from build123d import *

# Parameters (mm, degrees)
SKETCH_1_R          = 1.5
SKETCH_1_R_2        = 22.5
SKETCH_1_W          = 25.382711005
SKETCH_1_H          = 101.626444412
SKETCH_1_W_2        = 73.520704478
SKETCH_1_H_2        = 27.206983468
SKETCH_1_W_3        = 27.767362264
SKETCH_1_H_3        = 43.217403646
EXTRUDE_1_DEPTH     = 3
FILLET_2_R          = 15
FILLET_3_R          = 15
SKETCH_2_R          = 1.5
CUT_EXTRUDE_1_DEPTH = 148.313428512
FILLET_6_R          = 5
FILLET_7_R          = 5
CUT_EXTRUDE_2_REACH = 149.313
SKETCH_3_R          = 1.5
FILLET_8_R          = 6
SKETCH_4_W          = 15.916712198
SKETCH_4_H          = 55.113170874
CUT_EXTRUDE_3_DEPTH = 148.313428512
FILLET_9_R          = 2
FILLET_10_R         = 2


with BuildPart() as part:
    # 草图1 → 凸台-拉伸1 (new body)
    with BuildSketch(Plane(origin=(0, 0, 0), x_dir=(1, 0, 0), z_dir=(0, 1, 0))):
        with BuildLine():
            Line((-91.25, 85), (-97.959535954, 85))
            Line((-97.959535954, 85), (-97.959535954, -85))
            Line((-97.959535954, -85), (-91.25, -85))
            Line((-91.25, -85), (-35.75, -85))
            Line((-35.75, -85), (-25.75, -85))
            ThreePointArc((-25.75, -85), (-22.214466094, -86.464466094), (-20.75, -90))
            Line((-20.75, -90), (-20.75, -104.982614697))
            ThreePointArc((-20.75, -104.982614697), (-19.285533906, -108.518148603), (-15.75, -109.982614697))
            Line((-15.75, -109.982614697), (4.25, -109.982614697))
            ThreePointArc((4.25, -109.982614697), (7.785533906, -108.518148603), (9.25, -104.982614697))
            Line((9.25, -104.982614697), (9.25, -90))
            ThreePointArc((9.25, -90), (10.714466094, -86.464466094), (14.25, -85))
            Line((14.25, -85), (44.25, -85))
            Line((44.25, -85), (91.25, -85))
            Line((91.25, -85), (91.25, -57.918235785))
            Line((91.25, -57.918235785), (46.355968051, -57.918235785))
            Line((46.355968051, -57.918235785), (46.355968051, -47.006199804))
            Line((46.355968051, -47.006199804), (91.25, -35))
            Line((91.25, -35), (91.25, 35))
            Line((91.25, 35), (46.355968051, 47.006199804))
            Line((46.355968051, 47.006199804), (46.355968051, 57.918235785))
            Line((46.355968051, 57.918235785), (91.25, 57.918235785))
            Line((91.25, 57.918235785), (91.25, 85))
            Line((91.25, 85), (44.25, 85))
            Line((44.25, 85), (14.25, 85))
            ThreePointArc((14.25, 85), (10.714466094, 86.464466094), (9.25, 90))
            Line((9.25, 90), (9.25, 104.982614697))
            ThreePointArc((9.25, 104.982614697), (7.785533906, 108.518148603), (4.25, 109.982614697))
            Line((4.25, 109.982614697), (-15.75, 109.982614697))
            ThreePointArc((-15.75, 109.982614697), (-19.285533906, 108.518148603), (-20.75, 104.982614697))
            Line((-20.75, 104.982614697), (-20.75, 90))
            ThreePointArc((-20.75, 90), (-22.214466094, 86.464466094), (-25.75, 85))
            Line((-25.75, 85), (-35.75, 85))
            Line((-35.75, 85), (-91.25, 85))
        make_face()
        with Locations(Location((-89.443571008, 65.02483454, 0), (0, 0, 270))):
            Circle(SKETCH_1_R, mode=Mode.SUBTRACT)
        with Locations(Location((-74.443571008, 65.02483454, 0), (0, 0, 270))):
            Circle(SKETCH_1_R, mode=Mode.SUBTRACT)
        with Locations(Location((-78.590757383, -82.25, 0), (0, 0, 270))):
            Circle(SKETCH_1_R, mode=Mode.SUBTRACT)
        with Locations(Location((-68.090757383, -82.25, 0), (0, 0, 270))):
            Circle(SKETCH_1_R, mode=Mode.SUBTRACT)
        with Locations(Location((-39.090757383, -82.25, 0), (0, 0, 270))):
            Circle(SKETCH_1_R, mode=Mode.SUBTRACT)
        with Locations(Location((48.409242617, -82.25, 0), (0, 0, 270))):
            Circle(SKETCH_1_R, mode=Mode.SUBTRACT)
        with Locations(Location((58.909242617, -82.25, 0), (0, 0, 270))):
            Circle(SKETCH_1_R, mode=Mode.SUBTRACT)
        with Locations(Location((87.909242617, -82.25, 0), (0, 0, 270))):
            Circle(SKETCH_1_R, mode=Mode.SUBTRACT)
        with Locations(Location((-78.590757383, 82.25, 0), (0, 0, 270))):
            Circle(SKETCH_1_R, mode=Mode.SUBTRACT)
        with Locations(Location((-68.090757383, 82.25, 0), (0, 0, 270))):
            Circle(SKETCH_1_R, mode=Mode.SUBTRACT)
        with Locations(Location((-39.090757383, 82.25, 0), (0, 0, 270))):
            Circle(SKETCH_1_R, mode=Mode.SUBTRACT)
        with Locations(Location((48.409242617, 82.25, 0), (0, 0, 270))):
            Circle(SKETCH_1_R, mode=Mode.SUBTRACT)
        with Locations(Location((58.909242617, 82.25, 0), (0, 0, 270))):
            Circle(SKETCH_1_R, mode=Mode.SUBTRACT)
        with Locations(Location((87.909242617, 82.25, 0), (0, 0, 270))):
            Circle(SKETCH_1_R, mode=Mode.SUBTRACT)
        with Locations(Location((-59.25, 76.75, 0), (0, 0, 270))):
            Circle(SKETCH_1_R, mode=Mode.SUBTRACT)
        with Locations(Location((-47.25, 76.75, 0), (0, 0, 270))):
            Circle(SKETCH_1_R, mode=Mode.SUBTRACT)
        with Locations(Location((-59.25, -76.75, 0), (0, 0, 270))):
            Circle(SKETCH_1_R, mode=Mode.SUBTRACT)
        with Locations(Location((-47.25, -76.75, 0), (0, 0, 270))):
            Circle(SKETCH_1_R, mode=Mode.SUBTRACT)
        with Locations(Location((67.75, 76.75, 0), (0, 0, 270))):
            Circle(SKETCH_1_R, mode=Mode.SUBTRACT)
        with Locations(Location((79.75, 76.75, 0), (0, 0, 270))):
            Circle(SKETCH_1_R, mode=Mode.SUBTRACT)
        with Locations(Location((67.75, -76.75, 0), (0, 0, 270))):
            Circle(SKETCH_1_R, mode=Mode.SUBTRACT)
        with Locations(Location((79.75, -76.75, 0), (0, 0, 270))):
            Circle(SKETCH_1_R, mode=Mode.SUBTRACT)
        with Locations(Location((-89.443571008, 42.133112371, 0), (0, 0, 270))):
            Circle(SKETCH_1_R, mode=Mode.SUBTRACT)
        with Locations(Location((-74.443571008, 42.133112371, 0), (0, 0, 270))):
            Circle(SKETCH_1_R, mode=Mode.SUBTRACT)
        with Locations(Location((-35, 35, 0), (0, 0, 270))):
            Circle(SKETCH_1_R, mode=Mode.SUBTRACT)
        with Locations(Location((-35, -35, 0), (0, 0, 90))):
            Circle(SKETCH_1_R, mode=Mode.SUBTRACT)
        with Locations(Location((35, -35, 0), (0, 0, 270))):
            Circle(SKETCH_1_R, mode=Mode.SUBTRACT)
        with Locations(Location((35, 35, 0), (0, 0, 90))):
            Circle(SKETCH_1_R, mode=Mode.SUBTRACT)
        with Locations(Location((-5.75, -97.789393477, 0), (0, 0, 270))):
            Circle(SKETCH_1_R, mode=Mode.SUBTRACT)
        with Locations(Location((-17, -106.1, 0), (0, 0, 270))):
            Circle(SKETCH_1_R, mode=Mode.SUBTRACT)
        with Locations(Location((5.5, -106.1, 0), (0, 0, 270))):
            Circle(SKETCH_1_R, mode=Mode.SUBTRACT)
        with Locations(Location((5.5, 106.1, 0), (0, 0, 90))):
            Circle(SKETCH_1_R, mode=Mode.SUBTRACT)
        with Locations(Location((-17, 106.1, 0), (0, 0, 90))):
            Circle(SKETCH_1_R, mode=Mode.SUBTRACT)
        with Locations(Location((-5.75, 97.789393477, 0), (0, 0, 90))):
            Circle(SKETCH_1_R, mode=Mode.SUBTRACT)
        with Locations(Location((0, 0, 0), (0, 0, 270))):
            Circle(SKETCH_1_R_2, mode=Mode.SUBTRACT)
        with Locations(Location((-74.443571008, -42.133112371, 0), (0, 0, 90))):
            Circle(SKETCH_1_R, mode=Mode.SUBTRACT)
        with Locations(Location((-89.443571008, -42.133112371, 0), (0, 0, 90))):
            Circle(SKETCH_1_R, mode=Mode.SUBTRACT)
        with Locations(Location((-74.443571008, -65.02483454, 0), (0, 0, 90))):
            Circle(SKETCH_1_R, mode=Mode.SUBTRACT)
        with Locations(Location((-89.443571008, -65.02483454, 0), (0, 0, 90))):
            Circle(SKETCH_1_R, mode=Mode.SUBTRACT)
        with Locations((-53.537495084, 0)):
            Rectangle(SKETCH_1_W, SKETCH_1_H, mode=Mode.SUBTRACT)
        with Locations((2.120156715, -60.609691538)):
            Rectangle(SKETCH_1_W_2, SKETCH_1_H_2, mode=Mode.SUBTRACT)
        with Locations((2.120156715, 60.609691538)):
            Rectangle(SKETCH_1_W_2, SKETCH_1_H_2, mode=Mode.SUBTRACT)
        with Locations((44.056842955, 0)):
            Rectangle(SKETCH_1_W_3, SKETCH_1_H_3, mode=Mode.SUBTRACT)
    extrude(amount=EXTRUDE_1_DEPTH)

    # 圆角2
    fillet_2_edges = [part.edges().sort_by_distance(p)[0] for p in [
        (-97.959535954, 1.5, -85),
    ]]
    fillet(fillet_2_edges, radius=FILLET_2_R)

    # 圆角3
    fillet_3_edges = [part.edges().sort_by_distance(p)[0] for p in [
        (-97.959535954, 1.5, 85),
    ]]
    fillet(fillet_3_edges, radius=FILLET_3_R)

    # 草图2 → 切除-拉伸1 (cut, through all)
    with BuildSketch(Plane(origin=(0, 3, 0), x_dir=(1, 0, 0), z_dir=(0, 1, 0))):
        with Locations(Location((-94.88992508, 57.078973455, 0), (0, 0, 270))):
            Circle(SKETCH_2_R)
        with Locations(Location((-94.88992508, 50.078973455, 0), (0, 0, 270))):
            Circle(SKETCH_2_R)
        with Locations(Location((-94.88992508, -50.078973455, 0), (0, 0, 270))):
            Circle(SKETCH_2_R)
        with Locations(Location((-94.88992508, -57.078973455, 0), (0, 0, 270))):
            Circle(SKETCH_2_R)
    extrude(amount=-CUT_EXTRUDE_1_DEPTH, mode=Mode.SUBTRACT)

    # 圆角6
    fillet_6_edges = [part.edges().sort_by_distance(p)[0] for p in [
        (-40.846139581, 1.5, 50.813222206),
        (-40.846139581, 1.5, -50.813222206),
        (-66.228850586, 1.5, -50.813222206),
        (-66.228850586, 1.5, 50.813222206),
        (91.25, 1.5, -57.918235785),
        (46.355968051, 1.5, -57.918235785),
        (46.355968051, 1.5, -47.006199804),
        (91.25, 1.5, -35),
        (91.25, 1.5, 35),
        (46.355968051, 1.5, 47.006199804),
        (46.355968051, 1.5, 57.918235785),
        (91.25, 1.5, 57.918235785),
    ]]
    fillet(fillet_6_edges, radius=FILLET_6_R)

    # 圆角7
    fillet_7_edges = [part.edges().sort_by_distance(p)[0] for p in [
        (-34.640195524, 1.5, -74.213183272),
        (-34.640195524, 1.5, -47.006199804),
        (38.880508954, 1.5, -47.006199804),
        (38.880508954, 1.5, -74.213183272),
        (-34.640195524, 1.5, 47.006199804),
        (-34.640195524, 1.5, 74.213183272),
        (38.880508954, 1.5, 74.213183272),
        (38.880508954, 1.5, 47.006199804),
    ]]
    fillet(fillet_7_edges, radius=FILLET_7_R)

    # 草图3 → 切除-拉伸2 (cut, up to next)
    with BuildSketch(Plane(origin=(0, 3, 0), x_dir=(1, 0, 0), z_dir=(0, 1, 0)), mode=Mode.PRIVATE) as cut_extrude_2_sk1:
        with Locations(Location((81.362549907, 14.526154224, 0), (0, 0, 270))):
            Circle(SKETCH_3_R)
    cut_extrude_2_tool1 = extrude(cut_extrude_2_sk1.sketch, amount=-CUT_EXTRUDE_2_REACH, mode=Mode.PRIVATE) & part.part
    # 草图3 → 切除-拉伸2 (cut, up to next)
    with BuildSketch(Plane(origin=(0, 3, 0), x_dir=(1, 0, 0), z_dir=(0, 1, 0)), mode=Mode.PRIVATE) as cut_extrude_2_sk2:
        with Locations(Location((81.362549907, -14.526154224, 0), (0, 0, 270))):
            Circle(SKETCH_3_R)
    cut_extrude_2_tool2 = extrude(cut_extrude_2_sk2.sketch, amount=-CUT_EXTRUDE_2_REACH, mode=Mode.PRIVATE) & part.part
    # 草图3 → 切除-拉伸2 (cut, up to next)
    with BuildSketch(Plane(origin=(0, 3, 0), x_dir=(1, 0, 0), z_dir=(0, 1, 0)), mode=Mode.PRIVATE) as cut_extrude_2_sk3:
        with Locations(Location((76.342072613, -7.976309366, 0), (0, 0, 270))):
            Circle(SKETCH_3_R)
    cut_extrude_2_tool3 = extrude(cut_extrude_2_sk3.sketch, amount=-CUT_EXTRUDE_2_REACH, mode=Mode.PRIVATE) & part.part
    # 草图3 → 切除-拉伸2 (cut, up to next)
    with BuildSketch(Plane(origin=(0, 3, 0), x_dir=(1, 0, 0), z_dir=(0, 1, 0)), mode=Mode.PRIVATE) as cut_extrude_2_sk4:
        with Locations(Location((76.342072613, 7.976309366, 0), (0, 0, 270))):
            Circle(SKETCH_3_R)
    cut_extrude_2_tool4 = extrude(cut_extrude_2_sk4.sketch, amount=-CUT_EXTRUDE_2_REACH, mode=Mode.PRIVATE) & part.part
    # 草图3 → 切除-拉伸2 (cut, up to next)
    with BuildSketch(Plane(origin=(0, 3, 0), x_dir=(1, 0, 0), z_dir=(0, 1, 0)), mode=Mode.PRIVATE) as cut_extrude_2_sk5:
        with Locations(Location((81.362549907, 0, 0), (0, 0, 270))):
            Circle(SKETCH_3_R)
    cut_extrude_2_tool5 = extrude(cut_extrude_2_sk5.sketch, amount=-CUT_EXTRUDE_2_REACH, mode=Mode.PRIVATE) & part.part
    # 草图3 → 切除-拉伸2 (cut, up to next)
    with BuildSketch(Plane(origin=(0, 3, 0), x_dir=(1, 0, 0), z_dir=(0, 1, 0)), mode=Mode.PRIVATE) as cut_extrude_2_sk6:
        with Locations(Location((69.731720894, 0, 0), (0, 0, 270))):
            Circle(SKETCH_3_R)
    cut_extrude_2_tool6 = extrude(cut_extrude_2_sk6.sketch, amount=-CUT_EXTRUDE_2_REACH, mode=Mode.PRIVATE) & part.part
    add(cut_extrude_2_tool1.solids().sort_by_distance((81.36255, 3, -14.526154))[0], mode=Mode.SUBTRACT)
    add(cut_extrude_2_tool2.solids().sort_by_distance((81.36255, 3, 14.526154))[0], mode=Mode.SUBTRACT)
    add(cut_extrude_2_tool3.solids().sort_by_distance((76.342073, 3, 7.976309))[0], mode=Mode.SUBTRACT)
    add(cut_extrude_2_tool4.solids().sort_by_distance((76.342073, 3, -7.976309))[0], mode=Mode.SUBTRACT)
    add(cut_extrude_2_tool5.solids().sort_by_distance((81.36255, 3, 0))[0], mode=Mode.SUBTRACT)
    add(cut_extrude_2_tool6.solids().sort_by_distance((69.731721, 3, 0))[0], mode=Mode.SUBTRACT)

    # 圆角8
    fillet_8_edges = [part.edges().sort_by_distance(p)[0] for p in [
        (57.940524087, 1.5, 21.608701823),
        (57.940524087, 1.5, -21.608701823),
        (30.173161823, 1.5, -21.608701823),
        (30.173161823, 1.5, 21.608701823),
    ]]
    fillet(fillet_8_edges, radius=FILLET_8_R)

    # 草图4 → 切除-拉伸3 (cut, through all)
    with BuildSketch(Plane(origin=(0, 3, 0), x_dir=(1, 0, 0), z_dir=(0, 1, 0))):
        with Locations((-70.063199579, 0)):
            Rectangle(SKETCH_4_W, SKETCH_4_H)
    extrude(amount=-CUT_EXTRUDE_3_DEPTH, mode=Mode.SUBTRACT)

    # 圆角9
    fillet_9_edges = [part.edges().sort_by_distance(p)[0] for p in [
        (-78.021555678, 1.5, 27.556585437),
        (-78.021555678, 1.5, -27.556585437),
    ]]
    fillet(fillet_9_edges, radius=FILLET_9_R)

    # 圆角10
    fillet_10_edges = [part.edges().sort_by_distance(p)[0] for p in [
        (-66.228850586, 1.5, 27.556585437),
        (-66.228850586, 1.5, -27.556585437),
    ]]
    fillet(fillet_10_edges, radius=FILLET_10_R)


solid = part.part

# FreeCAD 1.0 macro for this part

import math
import FreeCAD as App
import Part
import Sketcher

V = App.Vector


def edges_at(feature, points):
    """Names of the edges that pass closest to the given points."""
    edges = feature.Shape.Edges
    near = lambda p: min(range(len(edges)), key=lambda i: edges[i].distToShape(Part.Vertex(*p))[0])
    return sorted({f"Edge{near(p) + 1}" for p in points})

doc = App.newDocument("Part")
body = doc.addObject("PartDesign::Body", "Body")

# Sketch on XZ plane
sketch1 = body.newObject("Sketcher::SketchObject", "Sketch")
sketch1.AttachmentSupport = (doc.getObject("XZ_Plane"), [""])
sketch1.MapMode = "FlatFace"
sketch1.addGeometry(Part.LineSegment(V(-98, -85, 0), V(-98, 85, 0)), False)
sketch1.addGeometry(Part.LineSegment(V(-98, 85, 0), V(-25.8, 85, 0)), False)
sketch1.addGeometry(Part.ArcOfCircle(Part.Circle(V(-25.8, 90, 0), V(0, 0, 1), 5), math.radians(-90), math.radians(0)), False)
sketch1.addGeometry(Part.LineSegment(V(-20.8, 90, 0), V(-20.8, 105, 0)), False)
sketch1.addGeometry(Part.ArcOfCircle(Part.Circle(V(-15.8, 105, 0), V(0, 0, 1), 5), math.radians(90), math.radians(180)), False)
sketch1.addGeometry(Part.LineSegment(V(-15.8, 110, 0), V(4.2, 110, 0)), False)
sketch1.addGeometry(Part.ArcOfCircle(Part.Circle(V(4.2, 105, 0), V(0, 0, 1), 5), math.radians(0), math.radians(90)), False)
sketch1.addGeometry(Part.LineSegment(V(9.2, 105, 0), V(9.2, 90, 0)), False)
sketch1.addGeometry(Part.ArcOfCircle(Part.Circle(V(14.2, 90, 0), V(0, 0, 1), 5), math.radians(180), math.radians(270)), False)
sketch1.addGeometry(Part.LineSegment(V(14.2, 85, 0), V(91.2, 85, 0)), False)
sketch1.addGeometry(Part.LineSegment(V(91.2, 85, 0), V(91.2, 57.9, 0)), False)
sketch1.addGeometry(Part.LineSegment(V(91.2, 57.9, 0), V(46.4, 57.9, 0)), False)
sketch1.addGeometry(Part.LineSegment(V(46.4, 57.9, 0), V(46.4, 47, 0)), False)
sketch1.addGeometry(Part.LineSegment(V(46.4, 47, 0), V(91.2, 35, 0)), False)
sketch1.addGeometry(Part.LineSegment(V(91.2, 35, 0), V(91.2, -35, 0)), False)
sketch1.addGeometry(Part.LineSegment(V(91.2, -35, 0), V(46.4, -47, 0)), False)
sketch1.addGeometry(Part.LineSegment(V(46.4, -47, 0), V(46.4, -57.9, 0)), False)
sketch1.addGeometry(Part.LineSegment(V(46.4, -57.9, 0), V(91.2, -57.9, 0)), False)
sketch1.addGeometry(Part.LineSegment(V(91.2, -57.9, 0), V(91.2, -85, 0)), False)
sketch1.addGeometry(Part.LineSegment(V(91.2, -85, 0), V(14.2, -85, 0)), False)
sketch1.addGeometry(Part.ArcOfCircle(Part.Circle(V(14.2, -90, 0), V(0, 0, 1), 5), math.radians(90), math.radians(180)), False)
sketch1.addGeometry(Part.LineSegment(V(9.2, -90, 0), V(9.2, -105, 0)), False)
sketch1.addGeometry(Part.ArcOfCircle(Part.Circle(V(4.2, -105, 0), V(0, 0, 1), 5), math.radians(-90), math.radians(0)), False)
sketch1.addGeometry(Part.LineSegment(V(4.2, -110, 0), V(-15.8, -110, 0)), False)
sketch1.addGeometry(Part.ArcOfCircle(Part.Circle(V(-15.8, -105, 0), V(0, 0, 1), 5), math.radians(180), math.radians(270)), False)
sketch1.addGeometry(Part.LineSegment(V(-20.8, -105, 0), V(-20.8, -90, 0)), False)
sketch1.addGeometry(Part.ArcOfCircle(Part.Circle(V(-25.8, -90, 0), V(0, 0, 1), 5), math.radians(0), math.radians(90)), False)
sketch1.addGeometry(Part.LineSegment(V(-25.8, -85, 0), V(-98, -85, 0)), False)
sketch1.addGeometry(Part.Circle(V(-78.6, 82.2, 0), V(0, 0, 1), 1.5), False)
sketch1.addGeometry(Part.Circle(V(-68.1, 82.2, 0), V(0, 0, 1), 1.5), False)
sketch1.addGeometry(Part.Circle(V(-89.4, 65, 0), V(0, 0, 1), 1.5), False)
sketch1.addGeometry(Part.Circle(V(-74.4, 65, 0), V(0, 0, 1), 1.5), False)
sketch1.addGeometry(Part.Circle(V(-59.2, 76.8, 0), V(0, 0, 1), 1.5), False)
sketch1.addGeometry(Part.Circle(V(-47.2, 76.8, 0), V(0, 0, 1), 1.5), False)
sketch1.addGeometry(Part.Circle(V(-39.1, 82.2, 0), V(0, 0, 1), 1.5), False)
sketch1.addGeometry(Part.Circle(V(-17, 106.1, 0), V(0, 0, 1), 1.5), False)
sketch1.addGeometry(Part.Circle(V(-5.8, 97.8, 0), V(0, 0, 1), 1.5), False)
sketch1.addGeometry(Part.Circle(V(-89.4, 42.1, 0), V(0, 0, 1), 1.5), False)
sketch1.addGeometry(Part.Circle(V(-74.4, 42.1, 0), V(0, 0, 1), 1.5), False)
sketch1.addGeometry(Part.Circle(V(-35, 35, 0), V(0, 0, 1), 1.5), False)
sketch1.addGeometry(Part.Circle(V(5.5, 106.1, 0), V(0, 0, 1), 1.5), False)
sketch1.addGeometry(Part.LineSegment(V(38.9, 74.2, 0), V(-34.6, 74.2, 0)), False)
sketch1.addGeometry(Part.LineSegment(V(-34.6, 74.2, 0), V(-34.6, 47, 0)), False)
sketch1.addGeometry(Part.LineSegment(V(-34.6, 47, 0), V(38.9, 47, 0)), False)
sketch1.addGeometry(Part.LineSegment(V(38.9, 47, 0), V(38.9, 74.2, 0)), False)
sketch1.addGeometry(Part.Circle(V(48.4, 82.2, 0), V(0, 0, 1), 1.5), False)
sketch1.addGeometry(Part.Circle(V(58.9, 82.2, 0), V(0, 0, 1), 1.5), False)
sketch1.addGeometry(Part.Circle(V(87.9, 82.2, 0), V(0, 0, 1), 1.5), False)
sketch1.addGeometry(Part.Circle(V(67.8, 76.8, 0), V(0, 0, 1), 1.5), False)
sketch1.addGeometry(Part.Circle(V(79.8, 76.8, 0), V(0, 0, 1), 1.5), False)
sketch1.addGeometry(Part.Circle(V(35, 35, 0), V(0, 0, 1), 1.5), False)
sketch1.addGeometry(Part.LineSegment(V(-40.8, 50.8, 0), V(-66.2, 50.8, 0)), False)
sketch1.addGeometry(Part.LineSegment(V(-66.2, 50.8, 0), V(-66.2, -50.8, 0)), False)
sketch1.addGeometry(Part.LineSegment(V(-66.2, -50.8, 0), V(-40.8, -50.8, 0)), False)
sketch1.addGeometry(Part.LineSegment(V(-40.8, -50.8, 0), V(-40.8, 50.8, 0)), False)
sketch1.addGeometry(Part.Circle(V(-89.4, -42.1, 0), V(0, 0, 1), 1.5), False)
sketch1.addGeometry(Part.Circle(V(-74.4, -42.1, 0), V(0, 0, 1), 1.5), False)
sketch1.addGeometry(Part.Circle(V(-35, -35, 0), V(0, 0, 1), 1.5), False)
sketch1.addGeometry(Part.Circle(V(-89.4, -65, 0), V(0, 0, 1), 1.5), False)
sketch1.addGeometry(Part.Circle(V(-74.4, -65, 0), V(0, 0, 1), 1.5), False)
sketch1.addGeometry(Part.Circle(V(-59.2, -76.8, 0), V(0, 0, 1), 1.5), False)
sketch1.addGeometry(Part.Circle(V(-47.2, -76.8, 0), V(0, 0, 1), 1.5), False)
sketch1.addGeometry(Part.Circle(V(-78.6, -82.2, 0), V(0, 0, 1), 1.5), False)
sketch1.addGeometry(Part.Circle(V(-68.1, -82.2, 0), V(0, 0, 1), 1.5), False)
sketch1.addGeometry(Part.Circle(V(-39.1, -82.2, 0), V(0, 0, 1), 1.5), False)
sketch1.addGeometry(Part.Circle(V(-17, -106.1, 0), V(0, 0, 1), 1.5), False)
sketch1.addGeometry(Part.Circle(V(-5.8, -97.8, 0), V(0, 0, 1), 1.5), False)
sketch1.addGeometry(Part.Circle(V(0, 0, 0), V(0, 0, 1), 22.5), False)
sketch1.addGeometry(Part.LineSegment(V(57.9, 21.6, 0), V(30.2, 21.6, 0)), False)
sketch1.addGeometry(Part.LineSegment(V(30.2, 21.6, 0), V(30.2, -21.6, 0)), False)
sketch1.addGeometry(Part.LineSegment(V(30.2, -21.6, 0), V(57.9, -21.6, 0)), False)
sketch1.addGeometry(Part.LineSegment(V(57.9, -21.6, 0), V(57.9, 21.6, 0)), False)
sketch1.addGeometry(Part.Circle(V(35, -35, 0), V(0, 0, 1), 1.5), False)
sketch1.addGeometry(Part.LineSegment(V(38.9, -47, 0), V(-34.6, -47, 0)), False)
sketch1.addGeometry(Part.LineSegment(V(-34.6, -47, 0), V(-34.6, -74.2, 0)), False)
sketch1.addGeometry(Part.LineSegment(V(-34.6, -74.2, 0), V(38.9, -74.2, 0)), False)
sketch1.addGeometry(Part.LineSegment(V(38.9, -74.2, 0), V(38.9, -47, 0)), False)
sketch1.addGeometry(Part.Circle(V(5.5, -106.1, 0), V(0, 0, 1), 1.5), False)
sketch1.addGeometry(Part.Circle(V(67.8, -76.8, 0), V(0, 0, 1), 1.5), False)
sketch1.addGeometry(Part.Circle(V(79.8, -76.8, 0), V(0, 0, 1), 1.5), False)
sketch1.addGeometry(Part.Circle(V(48.4, -82.2, 0), V(0, 0, 1), 1.5), False)
sketch1.addGeometry(Part.Circle(V(58.9, -82.2, 0), V(0, 0, 1), 1.5), False)
sketch1.addGeometry(Part.Circle(V(87.9, -82.2, 0), V(0, 0, 1), 1.5), False)
sketch1.addConstraint(Sketcher.Constraint("Coincident", 0, 2, 1, 1))
sketch1.addConstraint(Sketcher.Constraint("Tangent", 1, 2, 2, 1))
sketch1.addConstraint(Sketcher.Constraint("Tangent", 2, 2, 3, 1))
sketch1.addConstraint(Sketcher.Constraint("Tangent", 3, 2, 4, 2))
sketch1.addConstraint(Sketcher.Constraint("Tangent", 4, 1, 5, 1))
sketch1.addConstraint(Sketcher.Constraint("Tangent", 5, 2, 6, 2))
sketch1.addConstraint(Sketcher.Constraint("Tangent", 6, 1, 7, 1))
sketch1.addConstraint(Sketcher.Constraint("Tangent", 7, 2, 8, 1))
sketch1.addConstraint(Sketcher.Constraint("Tangent", 8, 2, 9, 1))
sketch1.addConstraint(Sketcher.Constraint("Coincident", 9, 2, 10, 1))
sketch1.addConstraint(Sketcher.Constraint("Coincident", 10, 2, 11, 1))
sketch1.addConstraint(Sketcher.Constraint("Coincident", 11, 2, 12, 1))
sketch1.addConstraint(Sketcher.Constraint("Coincident", 12, 2, 13, 1))
sketch1.addConstraint(Sketcher.Constraint("Coincident", 13, 2, 14, 1))
sketch1.addConstraint(Sketcher.Constraint("Coincident", 14, 2, 15, 1))
sketch1.addConstraint(Sketcher.Constraint("Coincident", 15, 2, 16, 1))
sketch1.addConstraint(Sketcher.Constraint("Coincident", 16, 2, 17, 1))
sketch1.addConstraint(Sketcher.Constraint("Coincident", 17, 2, 18, 1))
sketch1.addConstraint(Sketcher.Constraint("Coincident", 18, 2, 19, 1))
sketch1.addConstraint(Sketcher.Constraint("Tangent", 19, 2, 20, 1))
sketch1.addConstraint(Sketcher.Constraint("Tangent", 20, 2, 21, 1))
sketch1.addConstraint(Sketcher.Constraint("Tangent", 21, 2, 22, 2))
sketch1.addConstraint(Sketcher.Constraint("Tangent", 22, 1, 23, 1))
sketch1.addConstraint(Sketcher.Constraint("Tangent", 23, 2, 24, 2))
sketch1.addConstraint(Sketcher.Constraint("Tangent", 24, 1, 25, 1))
sketch1.addConstraint(Sketcher.Constraint("Tangent", 25, 2, 26, 1))
sketch1.addConstraint(Sketcher.Constraint("Tangent", 26, 2, 27, 1))
sketch1.addConstraint(Sketcher.Constraint("Coincident", 27, 2, 0, 1))
sketch1.addConstraint(Sketcher.Constraint("Coincident", 41, 2, 42, 1))
sketch1.addConstraint(Sketcher.Constraint("Coincident", 42, 2, 43, 1))
sketch1.addConstraint(Sketcher.Constraint("Coincident", 43, 2, 44, 1))
sketch1.addConstraint(Sketcher.Constraint("Coincident", 44, 2, 41, 1))
sketch1.addConstraint(Sketcher.Constraint("Coincident", 51, 2, 52, 1))
sketch1.addConstraint(Sketcher.Constraint("Coincident", 52, 2, 53, 1))
sketch1.addConstraint(Sketcher.Constraint("Coincident", 53, 2, 54, 1))
sketch1.addConstraint(Sketcher.Constraint("Coincident", 54, 2, 51, 1))
sketch1.addConstraint(Sketcher.Constraint("Coincident", 68, 2, 69, 1))
sketch1.addConstraint(Sketcher.Constraint("Coincident", 69, 2, 70, 1))
sketch1.addConstraint(Sketcher.Constraint("Coincident", 70, 2, 71, 1))
sketch1.addConstraint(Sketcher.Constraint("Coincident", 71, 2, 68, 1))
sketch1.addConstraint(Sketcher.Constraint("Coincident", 73, 2, 74, 1))
sketch1.addConstraint(Sketcher.Constraint("Coincident", 74, 2, 75, 1))
sketch1.addConstraint(Sketcher.Constraint("Coincident", 75, 2, 76, 1))
sketch1.addConstraint(Sketcher.Constraint("Coincident", 76, 2, 73, 1))
sketch1.addConstraint(Sketcher.Constraint("Vertical", 0))
sketch1.addConstraint(Sketcher.Constraint("Horizontal", 1))
sketch1.addConstraint(Sketcher.Constraint("Vertical", 3))
sketch1.addConstraint(Sketcher.Constraint("Horizontal", 5))
sketch1.addConstraint(Sketcher.Constraint("Vertical", 7))
sketch1.addConstraint(Sketcher.Constraint("Horizontal", 9))
sketch1.addConstraint(Sketcher.Constraint("Vertical", 10))
sketch1.addConstraint(Sketcher.Constraint("Horizontal", 11))
sketch1.addConstraint(Sketcher.Constraint("Vertical", 12))
sketch1.addConstraint(Sketcher.Constraint("Vertical", 14))
sketch1.addConstraint(Sketcher.Constraint("Vertical", 16))
sketch1.addConstraint(Sketcher.Constraint("Horizontal", 17))
sketch1.addConstraint(Sketcher.Constraint("Vertical", 18))
sketch1.addConstraint(Sketcher.Constraint("Horizontal", 19))
sketch1.addConstraint(Sketcher.Constraint("Vertical", 21))
sketch1.addConstraint(Sketcher.Constraint("Horizontal", 23))
sketch1.addConstraint(Sketcher.Constraint("Vertical", 25))
sketch1.addConstraint(Sketcher.Constraint("Horizontal", 27))
sketch1.addConstraint(Sketcher.Constraint("Horizontal", 41))
sketch1.addConstraint(Sketcher.Constraint("Vertical", 42))
sketch1.addConstraint(Sketcher.Constraint("Horizontal", 43))
sketch1.addConstraint(Sketcher.Constraint("Vertical", 44))
sketch1.addConstraint(Sketcher.Constraint("Horizontal", 51))
sketch1.addConstraint(Sketcher.Constraint("Vertical", 52))
sketch1.addConstraint(Sketcher.Constraint("Horizontal", 53))
sketch1.addConstraint(Sketcher.Constraint("Vertical", 54))
sketch1.addConstraint(Sketcher.Constraint("Horizontal", 68))
sketch1.addConstraint(Sketcher.Constraint("Vertical", 69))
sketch1.addConstraint(Sketcher.Constraint("Horizontal", 70))
sketch1.addConstraint(Sketcher.Constraint("Vertical", 71))
sketch1.addConstraint(Sketcher.Constraint("Horizontal", 73))
sketch1.addConstraint(Sketcher.Constraint("Vertical", 74))
sketch1.addConstraint(Sketcher.Constraint("Horizontal", 75))
sketch1.addConstraint(Sketcher.Constraint("Vertical", 76))
sketch1.addConstraint(Sketcher.Constraint("Coincident", 67, 3, -1, 1))
sketch1.addConstraint(Sketcher.Constraint("Equal", 2, 4))
sketch1.addConstraint(Sketcher.Constraint("Equal", 4, 6))
sketch1.addConstraint(Sketcher.Constraint("Equal", 6, 8))
sketch1.addConstraint(Sketcher.Constraint("Equal", 8, 20))
sketch1.addConstraint(Sketcher.Constraint("Equal", 20, 22))
sketch1.addConstraint(Sketcher.Constraint("Equal", 22, 24))
sketch1.addConstraint(Sketcher.Constraint("Equal", 24, 26))
sketch1.addConstraint(Sketcher.Constraint("Equal", 28, 29))
sketch1.addConstraint(Sketcher.Constraint("Equal", 29, 30))
sketch1.addConstraint(Sketcher.Constraint("Equal", 30, 31))
sketch1.addConstraint(Sketcher.Constraint("Equal", 31, 32))
sketch1.addConstraint(Sketcher.Constraint("Equal", 32, 33))
sketch1.addConstraint(Sketcher.Constraint("Equal", 33, 34))
sketch1.addConstraint(Sketcher.Constraint("Equal", 34, 35))
sketch1.addConstraint(Sketcher.Constraint("Equal", 35, 36))
sketch1.addConstraint(Sketcher.Constraint("Equal", 36, 37))
sketch1.addConstraint(Sketcher.Constraint("Equal", 37, 38))
sketch1.addConstraint(Sketcher.Constraint("Equal", 38, 39))
sketch1.addConstraint(Sketcher.Constraint("Equal", 39, 40))
sketch1.addConstraint(Sketcher.Constraint("Equal", 40, 45))
sketch1.addConstraint(Sketcher.Constraint("Equal", 45, 46))
sketch1.addConstraint(Sketcher.Constraint("Equal", 46, 47))
sketch1.addConstraint(Sketcher.Constraint("Equal", 47, 48))
sketch1.addConstraint(Sketcher.Constraint("Equal", 48, 49))
sketch1.addConstraint(Sketcher.Constraint("Equal", 49, 50))
sketch1.addConstraint(Sketcher.Constraint("Equal", 50, 55))
sketch1.addConstraint(Sketcher.Constraint("Equal", 55, 56))
sketch1.addConstraint(Sketcher.Constraint("Equal", 56, 57))
sketch1.addConstraint(Sketcher.Constraint("Equal", 57, 58))
sketch1.addConstraint(Sketcher.Constraint("Equal", 58, 59))
sketch1.addConstraint(Sketcher.Constraint("Equal", 59, 60))
sketch1.addConstraint(Sketcher.Constraint("Equal", 60, 61))
sketch1.addConstraint(Sketcher.Constraint("Equal", 61, 62))
sketch1.addConstraint(Sketcher.Constraint("Equal", 62, 63))
sketch1.addConstraint(Sketcher.Constraint("Equal", 63, 64))
sketch1.addConstraint(Sketcher.Constraint("Equal", 64, 65))
sketch1.addConstraint(Sketcher.Constraint("Equal", 65, 66))
sketch1.addConstraint(Sketcher.Constraint("Equal", 66, 72))
sketch1.addConstraint(Sketcher.Constraint("Equal", 72, 77))
sketch1.addConstraint(Sketcher.Constraint("Equal", 77, 78))
sketch1.addConstraint(Sketcher.Constraint("Equal", 78, 79))
sketch1.addConstraint(Sketcher.Constraint("Equal", 79, 80))
sketch1.addConstraint(Sketcher.Constraint("Equal", 80, 81))
sketch1.addConstraint(Sketcher.Constraint("Equal", 81, 82))
sketch1.addConstraint(Sketcher.Constraint("Symmetric", 50, 3, 57, 3, -1, 1))
sketch1.addConstraint(Sketcher.Constraint("Symmetric", 39, 3, 72, 3, -1, 1))
sketch1.addConstraint(Sketcher.Constraint("Symmetric", 39, 3, 50, 3, -2))
sketch1.addConstraint(Sketcher.Constraint("Symmetric", 8, 3, 20, 3, -1))
sketch1.addConstraint(Sketcher.Constraint("Symmetric", 4, 3, 24, 3, -1))
sketch1.addConstraint(Sketcher.Constraint("Symmetric", 37, 3, 55, 3, -1))
sketch1.addConstraint(Sketcher.Constraint("Symmetric", 38, 3, 56, 3, -1))
sketch1.addConstraint(Sketcher.Constraint("Symmetric", 30, 3, 58, 3, -1))
sketch1.addConstraint(Sketcher.Constraint("Symmetric", 31, 3, 59, 3, -1))
sketch1.addConstraint(Sketcher.Constraint("Symmetric", 32, 3, 60, 3, -1))
sketch1.addConstraint(Sketcher.Constraint("Symmetric", 33, 3, 61, 3, -1))
sketch1.addConstraint(Sketcher.Constraint("Symmetric", 28, 3, 62, 3, -1))
sketch1.addConstraint(Sketcher.Constraint("Symmetric", 29, 3, 63, 3, -1))
sketch1.addConstraint(Sketcher.Constraint("Symmetric", 34, 3, 64, 3, -1))
sketch1.addConstraint(Sketcher.Constraint("Symmetric", 35, 3, 65, 3, -1))
sketch1.addConstraint(Sketcher.Constraint("Symmetric", 36, 3, 66, 3, -1))
sketch1.addConstraint(Sketcher.Constraint("Symmetric", 40, 3, 77, 3, -1))
sketch1.addConstraint(Sketcher.Constraint("Symmetric", 48, 3, 78, 3, -1))
sketch1.addConstraint(Sketcher.Constraint("Symmetric", 49, 3, 79, 3, -1))
sketch1.addConstraint(Sketcher.Constraint("Symmetric", 45, 3, 80, 3, -1))
sketch1.addConstraint(Sketcher.Constraint("Symmetric", 46, 3, 81, 3, -1))
sketch1.addConstraint(Sketcher.Constraint("Symmetric", 47, 3, 82, 3, -1))
sketch1.addConstraint(Sketcher.Constraint("Symmetric", 12, 2, 15, 2, -1))
sketch1.addConstraint(Sketcher.Constraint("Symmetric", 10, 2, 17, 2, -1))
sketch1.addConstraint(Sketcher.Constraint("Symmetric", 42, 2, 73, 2, -1))
sketch1.addConstraint(Sketcher.Constraint("Symmetric", 44, 2, 75, 2, -1))
sketch1.addConstraint(Sketcher.Constraint("Horizontal", 2, 3, 8, 3))
sketch1.addConstraint(Sketcher.Constraint("Horizontal", 20, 3, 26, 3))
sketch1.addConstraint(Sketcher.Constraint("Horizontal", 28, 3, 29, 3))
sketch1.addConstraint(Sketcher.Constraint("Horizontal", 30, 3, 31, 3))
sketch1.addConstraint(Sketcher.Constraint("Horizontal", 32, 3, 33, 3))
sketch1.addConstraint(Sketcher.Constraint("Horizontal", 29, 3, 34, 3))
sketch1.addConstraint(Sketcher.Constraint("Horizontal", 37, 3, 38, 3))
sketch1.addConstraint(Sketcher.Constraint("Horizontal", 35, 3, 40, 3))
sketch1.addConstraint(Sketcher.Constraint("Horizontal", 34, 3, 45, 3))
sketch1.addConstraint(Sketcher.Constraint("Horizontal", 45, 3, 46, 3))
sketch1.addConstraint(Sketcher.Constraint("Horizontal", 46, 3, 47, 3))
sketch1.addConstraint(Sketcher.Constraint("Horizontal", 33, 3, 48, 3))
sketch1.addConstraint(Sketcher.Constraint("Horizontal", 48, 3, 49, 3))
sketch1.addConstraint(Sketcher.Constraint("Horizontal", 50, 3, 13, 2))
sketch1.addConstraint(Sketcher.Constraint("Horizontal", 72, 3, 14, 2))
sketch1.addConstraint(Sketcher.Constraint("Horizontal", 12, 2, 42, 2))
sketch1.addConstraint(Sketcher.Constraint("Vertical", 30, 3, 37, 3))
sketch1.addConstraint(Sketcher.Constraint("Vertical", 31, 3, 38, 3))
sketch1.addConstraint(Sketcher.Constraint("Vertical", 10, 2, 13, 2))
sketch1.addConstraint(Sketcher.Constraint("Diameter", 28, 3.0))
sketch1.addConstraint(Sketcher.Constraint("Diameter", 67, 45.0))
sketch1.addConstraint(Sketcher.Constraint("Radius", 2, 5.0))
sketch1.addConstraint(Sketcher.Constraint("DistanceX", 5, 1, 5, 2, 20.0))
sketch1.addConstraint(Sketcher.Constraint("DistanceX", 9, 1, 9, 2, 77.0))
sketch1.addConstraint(Sketcher.Constraint("DistanceY", 0, 1, 0, 2, 170.0))
sketch1.addConstraint(Sketcher.Constraint("DistanceY", 14, 2, 14, 1, 70.0))
sketch1.addConstraint(Sketcher.Constraint("DistanceX", 35, 3, -1, 1, 17.0))
sketch1.addConstraint(Sketcher.Constraint("DistanceX", 39, 3, -1, 1, 35.0))
sketch1.addConstraint(Sketcher.Constraint("DistanceY", -1, 1, 35, 3, 106.1))
sketch1.addConstraint(Sketcher.Constraint("DistanceX", -1, 1, 40, 3, 5.5))
sketch1.addConstraint(Sketcher.Constraint("DistanceX", 2, 3, -1, 1, 25.75))
sketch1.addConstraint(Sketcher.Constraint("DistanceY", -1, 1, 28, 3, 82.25))
sketch1.addConstraint(Sketcher.Constraint("DistanceX", 32, 3, -1, 1, 59.25))
sketch1.addConstraint(Sketcher.Constraint("DistanceY", -1, 1, 32, 3, 76.75))
sketch1.addConstraint(Sketcher.Constraint("DistanceX", 33, 3, -1, 1, 47.25))
sketch1.addConstraint(Sketcher.Constraint("DistanceX", 36, 3, -1, 1, 5.75))
sketch1.addConstraint(Sketcher.Constraint("DistanceX", -1, 1, 48, 3, 67.75))
sketch1.addConstraint(Sketcher.Constraint("DistanceX", -1, 1, 49, 3, 79.75))
sketch1.addConstraint(Sketcher.Constraint("DistanceX", 11, 2, 11, 1, 44.894032))
sketch1.addConstraint(Sketcher.Constraint("DistanceX", 51, 2, 51, 1, 25.382711))
sketch1.addConstraint(Sketcher.Constraint("DistanceY", -1, 1, 12, 2, 47.0062))
sketch1.addConstraint(Sketcher.Constraint("DistanceY", -1, 1, 68, 2, 21.608702))
sketch1.addConstraint(Sketcher.Constraint("DistanceY", 69, 2, -1, 1, 21.608702))
sketch1.addConstraint(Sketcher.Constraint("DistanceX", 1, 1, 1, 2, 72.209536))
sketch1.addConstraint(Sketcher.Constraint("DistanceX", 41, 2, 41, 1, 73.520704))
sketch1.addConstraint(Sketcher.Constraint("DistanceX", 68, 2, 68, 1, 27.767362))
sketch1.addConstraint(Sketcher.Constraint("DistanceY", 3, 1, 3, 2, 14.982615))
sketch1.addConstraint(Sketcher.Constraint("DistanceY", 10, 2, 10, 1, 27.081764))
sketch1.addConstraint(Sketcher.Constraint("DistanceY", 42, 2, 42, 1, 27.206983))
sketch1.addConstraint(Sketcher.Constraint("DistanceY", 52, 2, 52, 1, 101.626444))
sketch1.addConstraint(Sketcher.Constraint("DistanceX", 30, 3, -1, 1, 89.443571))
sketch1.addConstraint(Sketcher.Constraint("DistanceX", 31, 3, -1, 1, 74.443571))
sketch1.addConstraint(Sketcher.Constraint("DistanceX", -1, 1, 43, 2, 38.880509))
sketch1.addConstraint(Sketcher.Constraint("DistanceX", 51, 2, -1, 1, 66.228851))
sketch1.addConstraint(Sketcher.Constraint("DistanceX", -1, 1, 68, 2, 30.173162))
sketch1.addConstraint(Sketcher.Constraint("DistanceX", 28, 3, -1, 1, 78.590757))
sketch1.addConstraint(Sketcher.Constraint("DistanceX", 29, 3, -1, 1, 68.090757))
sketch1.addConstraint(Sketcher.Constraint("DistanceY", -1, 1, 30, 3, 65.024835))
sketch1.addConstraint(Sketcher.Constraint("DistanceX", 34, 3, -1, 1, 39.090757))
sketch1.addConstraint(Sketcher.Constraint("DistanceY", -1, 1, 36, 3, 97.789393))
sketch1.addConstraint(Sketcher.Constraint("DistanceY", -1, 1, 37, 3, 42.133112))
sketch1.addConstraint(Sketcher.Constraint("DistanceX", -1, 1, 45, 3, 48.409243))
sketch1.addConstraint(Sketcher.Constraint("DistanceX", -1, 1, 46, 3, 58.909243))
sketch1.addConstraint(Sketcher.Constraint("DistanceX", -1, 1, 47, 3, 87.909243))
sketch1.addConstraint(Sketcher.Constraint("DistanceY", -1, 1, 51, 2, 50.813222))
pad1 = body.newObject("PartDesign::Pad", "Pad")
pad1.Profile = sketch1
pad1.Length = 3
pad1.Reversed = True
doc.recompute()

fillet = body.newObject("PartDesign::Fillet", "Fillet")
fillet.Base = (pad1, edges_at(pad1, [(-97.96, 1.5, -85)]))
fillet.Radius = 15
doc.recompute()

fillet2 = body.newObject("PartDesign::Fillet", "Fillet001")
fillet2.Base = (fillet, edges_at(fillet, [(-97.96, 1.5, 85)]))
fillet2.Radius = 15

# Sketch on XZ plane
sketch2 = body.newObject("Sketcher::SketchObject", "Sketch001")
sketch2.AttachmentSupport = (doc.getObject("XZ_Plane"), [""])
sketch2.MapMode = "FlatFace"
sketch2.AttachmentOffset = App.Placement(V(0, 0, -3), App.Rotation())
sketch2.addGeometry(Part.Circle(V(-94.9, -57.1, 0), V(0, 0, 1), 1.5), False)
sketch2.addGeometry(Part.Circle(V(-94.9, -50.1, 0), V(0, 0, 1), 1.5), False)
sketch2.addGeometry(Part.Circle(V(-94.9, 50.1, 0), V(0, 0, 1), 1.5), False)
sketch2.addGeometry(Part.Circle(V(-94.9, 57.1, 0), V(0, 0, 1), 1.5), False)
sketch2.addConstraint(Sketcher.Constraint("Equal", 0, 1))
sketch2.addConstraint(Sketcher.Constraint("Equal", 1, 2))
sketch2.addConstraint(Sketcher.Constraint("Equal", 2, 3))
sketch2.addConstraint(Sketcher.Constraint("Symmetric", 1, 3, 2, 3, -1))
sketch2.addConstraint(Sketcher.Constraint("Symmetric", 0, 3, 3, 3, -1))
sketch2.addConstraint(Sketcher.Constraint("Vertical", 0, 3, 1, 3))
sketch2.addConstraint(Sketcher.Constraint("Diameter", 0, 3.0))
sketch2.addConstraint(Sketcher.Constraint("DistanceY", 0, 3, 1, 3, 7.0))
sketch2.addConstraint(Sketcher.Constraint("DistanceX", 0, 3, -1, 1, 94.889925))
sketch2.addConstraint(Sketcher.Constraint("DistanceY", 0, 3, -1, 1, 57.078973))
pocket1 = body.newObject("PartDesign::Pocket", "Pocket")
pocket1.Profile = sketch2
pocket1.Type = "ThroughAll"
pocket1.Reversed = True
doc.recompute()

fillet3 = body.newObject("PartDesign::Fillet", "Fillet002")
fillet3.Base = (pocket1, edges_at(pocket1, [
    (-40.846, 1.5, 50.813),
    (-40.846, 1.5, -50.813),
    (-66.229, 1.5, -50.813),
    (-66.229, 1.5, 50.813),
    (91.25, 1.5, -57.918),
    (46.356, 1.5, -57.918),
    (46.356, 1.5, -47.006),
    (91.25, 1.5, -35),
    (91.25, 1.5, 35),
    (46.356, 1.5, 47.006),
    (46.356, 1.5, 57.918),
    (91.25, 1.5, 57.918),
]))
fillet3.Radius = 5
doc.recompute()

fillet4 = body.newObject("PartDesign::Fillet", "Fillet003")
fillet4.Base = (fillet3, edges_at(fillet3, [
    (-34.64, 1.5, -74.213),
    (-34.64, 1.5, -47.006),
    (38.881, 1.5, -47.006),
    (38.881, 1.5, -74.213),
    (-34.64, 1.5, 47.006),
    (-34.64, 1.5, 74.213),
    (38.881, 1.5, 74.213),
    (38.881, 1.5, 47.006),
]))
fillet4.Radius = 5

# Sketch on XZ plane
sketch3 = body.newObject("Sketcher::SketchObject", "Sketch002")
sketch3.AttachmentSupport = (doc.getObject("XZ_Plane"), [""])
sketch3.MapMode = "FlatFace"
sketch3.AttachmentOffset = App.Placement(V(0, 0, -3), App.Rotation())
sketch3.addGeometry(Part.Circle(V(81.4, -14.5, 0), V(0, 0, 1), 1.5), False)
sketch3.addConstraint(Sketcher.Constraint("Diameter", 0, 3.0))
sketch3.addConstraint(Sketcher.Constraint("DistanceX", -1, 1, 0, 3, 81.36255))
sketch3.addConstraint(Sketcher.Constraint("DistanceY", 0, 3, -1, 1, 14.526154))
pocket2 = body.newObject("PartDesign::Pocket", "Pocket001")
pocket2.Profile = sketch3
pocket2.Type = "UpToFirst"
pocket2.Reversed = True

# Sketch on XZ plane
sketch4 = body.newObject("Sketcher::SketchObject", "Sketch003")
sketch4.AttachmentSupport = (doc.getObject("XZ_Plane"), [""])
sketch4.MapMode = "FlatFace"
sketch4.AttachmentOffset = App.Placement(V(0, 0, -3), App.Rotation())
sketch4.addGeometry(Part.Circle(V(81.4, 14.5, 0), V(0, 0, 1), 1.5), False)
sketch4.addConstraint(Sketcher.Constraint("Diameter", 0, 3.0))
sketch4.addConstraint(Sketcher.Constraint("DistanceX", -1, 1, 0, 3, 81.36255))
sketch4.addConstraint(Sketcher.Constraint("DistanceY", -1, 1, 0, 3, 14.526154))
pocket3 = body.newObject("PartDesign::Pocket", "Pocket002")
pocket3.Profile = sketch4
pocket3.Type = "UpToFirst"
pocket3.Reversed = True

# Sketch on XZ plane
sketch5 = body.newObject("Sketcher::SketchObject", "Sketch004")
sketch5.AttachmentSupport = (doc.getObject("XZ_Plane"), [""])
sketch5.MapMode = "FlatFace"
sketch5.AttachmentOffset = App.Placement(V(0, 0, -3), App.Rotation())
sketch5.addGeometry(Part.Circle(V(76.3, 8, 0), V(0, 0, 1), 1.5), False)
sketch5.addConstraint(Sketcher.Constraint("Diameter", 0, 3.0))
sketch5.addConstraint(Sketcher.Constraint("DistanceY", -1, 1, 0, 3, 7.976309))
sketch5.addConstraint(Sketcher.Constraint("DistanceX", -1, 1, 0, 3, 76.342073))
pocket4 = body.newObject("PartDesign::Pocket", "Pocket003")
pocket4.Profile = sketch5
pocket4.Type = "UpToFirst"
pocket4.Reversed = True

# Sketch on XZ plane
sketch6 = body.newObject("Sketcher::SketchObject", "Sketch005")
sketch6.AttachmentSupport = (doc.getObject("XZ_Plane"), [""])
sketch6.MapMode = "FlatFace"
sketch6.AttachmentOffset = App.Placement(V(0, 0, -3), App.Rotation())
sketch6.addGeometry(Part.Circle(V(76.3, -8, 0), V(0, 0, 1), 1.5), False)
sketch6.addConstraint(Sketcher.Constraint("Diameter", 0, 3.0))
sketch6.addConstraint(Sketcher.Constraint("DistanceY", 0, 3, -1, 1, 7.976309))
sketch6.addConstraint(Sketcher.Constraint("DistanceX", -1, 1, 0, 3, 76.342073))
pocket5 = body.newObject("PartDesign::Pocket", "Pocket004")
pocket5.Profile = sketch6
pocket5.Type = "UpToFirst"
pocket5.Reversed = True

# Sketch on XZ plane
sketch7 = body.newObject("Sketcher::SketchObject", "Sketch006")
sketch7.AttachmentSupport = (doc.getObject("XZ_Plane"), [""])
sketch7.MapMode = "FlatFace"
sketch7.AttachmentOffset = App.Placement(V(0, 0, -3), App.Rotation())
sketch7.addGeometry(Part.Circle(V(81.4, 0, 0), V(0, 0, 1), 1.5), False)
sketch7.addConstraint(Sketcher.Constraint("PointOnObject", 0, 3, -1))
sketch7.addConstraint(Sketcher.Constraint("Diameter", 0, 3.0))
sketch7.addConstraint(Sketcher.Constraint("DistanceX", -1, 1, 0, 3, 81.36255))
pocket6 = body.newObject("PartDesign::Pocket", "Pocket005")
pocket6.Profile = sketch7
pocket6.Type = "UpToFirst"
pocket6.Reversed = True

# Sketch on XZ plane
sketch8 = body.newObject("Sketcher::SketchObject", "Sketch007")
sketch8.AttachmentSupport = (doc.getObject("XZ_Plane"), [""])
sketch8.MapMode = "FlatFace"
sketch8.AttachmentOffset = App.Placement(V(0, 0, -3), App.Rotation())
sketch8.addGeometry(Part.Circle(V(69.7, 0, 0), V(0, 0, 1), 1.5), False)
sketch8.addConstraint(Sketcher.Constraint("PointOnObject", 0, 3, -1))
sketch8.addConstraint(Sketcher.Constraint("Diameter", 0, 3.0))
sketch8.addConstraint(Sketcher.Constraint("DistanceX", -1, 1, 0, 3, 69.731721))
pocket7 = body.newObject("PartDesign::Pocket", "Pocket006")
pocket7.Profile = sketch8
pocket7.Type = "UpToFirst"
pocket7.Reversed = True
doc.recompute()

fillet5 = body.newObject("PartDesign::Fillet", "Fillet004")
fillet5.Base = (pocket7, edges_at(pocket7, [
    (57.941, 1.5, 21.609),
    (57.941, 1.5, -21.609),
    (30.173, 1.5, -21.609),
    (30.173, 1.5, 21.609),
]))
fillet5.Radius = 6

# Sketch on XZ plane
sketch9 = body.newObject("Sketcher::SketchObject", "Sketch008")
sketch9.AttachmentSupport = (doc.getObject("XZ_Plane"), [""])
sketch9.MapMode = "FlatFace"
sketch9.AttachmentOffset = App.Placement(V(0, 0, -3), App.Rotation())
sketch9.addGeometry(Part.LineSegment(V(-78, -28, 0), V(-78, 28, 0)), False)
sketch9.addGeometry(Part.LineSegment(V(-78, 28, 0), V(-62, 28, 0)), False)
sketch9.addGeometry(Part.LineSegment(V(-62, 28, 0), V(-62, -28, 0)), False)
sketch9.addGeometry(Part.LineSegment(V(-62, -28, 0), V(-78, -28, 0)), False)
sketch9.addConstraint(Sketcher.Constraint("Coincident", 0, 2, 1, 1))
sketch9.addConstraint(Sketcher.Constraint("Coincident", 1, 2, 2, 1))
sketch9.addConstraint(Sketcher.Constraint("Coincident", 2, 2, 3, 1))
sketch9.addConstraint(Sketcher.Constraint("Coincident", 3, 2, 0, 1))
sketch9.addConstraint(Sketcher.Constraint("Vertical", 0))
sketch9.addConstraint(Sketcher.Constraint("Horizontal", 1))
sketch9.addConstraint(Sketcher.Constraint("Vertical", 2))
sketch9.addConstraint(Sketcher.Constraint("Horizontal", 3))
sketch9.addConstraint(Sketcher.Constraint("DistanceY", 0, 1, 0, 2, 55.113171))
sketch9.addConstraint(Sketcher.Constraint("DistanceX", 1, 1, 1, 2, 15.916712))
sketch9.addConstraint(Sketcher.Constraint("DistanceX", 0, 2, -1, 1, 78.021556))
sketch9.addConstraint(Sketcher.Constraint("DistanceY", -1, 1, 0, 2, 27.556585))
pocket8 = body.newObject("PartDesign::Pocket", "Pocket007")
pocket8.Profile = sketch9
pocket8.Type = "ThroughAll"
pocket8.Reversed = True
doc.recompute()

fillet6 = body.newObject("PartDesign::Fillet", "Fillet005")
fillet6.Base = (pocket8, edges_at(pocket8, [(-78.022, 1.5, 27.557), (-78.022, 1.5, -27.557)]))
fillet6.Radius = 2
doc.recompute()

fillet7 = body.newObject("PartDesign::Fillet", "Fillet006")
fillet7.Base = (fillet6, edges_at(fillet6, [(-66.229, 1.5, 27.557), (-66.229, 1.5, -27.557)]))
fillet7.Radius = 2

doc.recompute()
